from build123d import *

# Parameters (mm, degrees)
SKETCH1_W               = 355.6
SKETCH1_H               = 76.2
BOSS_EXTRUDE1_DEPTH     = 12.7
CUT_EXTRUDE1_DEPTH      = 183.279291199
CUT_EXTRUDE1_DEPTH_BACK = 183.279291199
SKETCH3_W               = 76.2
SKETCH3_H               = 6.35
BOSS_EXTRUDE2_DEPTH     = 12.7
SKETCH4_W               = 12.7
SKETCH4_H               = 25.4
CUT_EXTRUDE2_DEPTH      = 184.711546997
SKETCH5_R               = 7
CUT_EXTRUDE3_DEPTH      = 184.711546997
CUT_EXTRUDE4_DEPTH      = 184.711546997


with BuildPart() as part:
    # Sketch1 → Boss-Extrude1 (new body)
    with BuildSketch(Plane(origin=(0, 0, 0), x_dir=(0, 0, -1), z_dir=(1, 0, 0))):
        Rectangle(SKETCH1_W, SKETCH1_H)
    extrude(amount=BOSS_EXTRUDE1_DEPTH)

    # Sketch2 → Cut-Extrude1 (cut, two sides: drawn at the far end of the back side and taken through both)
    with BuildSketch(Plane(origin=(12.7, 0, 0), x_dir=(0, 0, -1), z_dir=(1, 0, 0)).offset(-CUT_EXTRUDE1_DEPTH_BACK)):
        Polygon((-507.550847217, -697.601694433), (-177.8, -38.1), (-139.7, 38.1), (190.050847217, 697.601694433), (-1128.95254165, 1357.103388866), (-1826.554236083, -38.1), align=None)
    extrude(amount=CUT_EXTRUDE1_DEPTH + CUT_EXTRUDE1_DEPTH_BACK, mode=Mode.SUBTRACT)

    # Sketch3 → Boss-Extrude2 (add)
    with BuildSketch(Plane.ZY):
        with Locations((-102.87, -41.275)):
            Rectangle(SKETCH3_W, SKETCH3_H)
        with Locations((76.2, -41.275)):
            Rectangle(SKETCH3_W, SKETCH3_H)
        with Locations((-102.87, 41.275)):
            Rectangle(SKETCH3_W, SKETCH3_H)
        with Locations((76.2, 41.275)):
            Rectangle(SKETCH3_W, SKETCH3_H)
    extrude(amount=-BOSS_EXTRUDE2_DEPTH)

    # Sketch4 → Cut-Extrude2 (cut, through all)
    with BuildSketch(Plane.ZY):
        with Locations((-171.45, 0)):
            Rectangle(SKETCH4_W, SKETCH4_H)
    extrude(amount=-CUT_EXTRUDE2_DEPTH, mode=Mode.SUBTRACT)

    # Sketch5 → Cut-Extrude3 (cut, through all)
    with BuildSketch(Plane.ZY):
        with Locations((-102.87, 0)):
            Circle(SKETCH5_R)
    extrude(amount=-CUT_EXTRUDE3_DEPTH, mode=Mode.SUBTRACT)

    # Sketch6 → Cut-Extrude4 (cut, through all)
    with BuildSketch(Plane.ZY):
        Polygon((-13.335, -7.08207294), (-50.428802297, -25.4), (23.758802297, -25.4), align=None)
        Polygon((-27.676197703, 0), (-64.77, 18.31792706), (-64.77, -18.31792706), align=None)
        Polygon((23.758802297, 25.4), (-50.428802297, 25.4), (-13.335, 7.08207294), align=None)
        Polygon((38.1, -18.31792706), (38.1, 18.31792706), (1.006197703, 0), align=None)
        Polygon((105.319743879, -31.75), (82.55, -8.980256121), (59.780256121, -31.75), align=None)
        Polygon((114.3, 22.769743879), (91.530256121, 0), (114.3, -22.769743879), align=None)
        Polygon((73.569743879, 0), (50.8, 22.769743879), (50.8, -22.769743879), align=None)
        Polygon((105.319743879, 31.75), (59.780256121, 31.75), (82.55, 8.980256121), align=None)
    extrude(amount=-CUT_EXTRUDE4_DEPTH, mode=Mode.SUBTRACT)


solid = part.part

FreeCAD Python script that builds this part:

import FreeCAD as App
import Part
import Sketcher

V = App.Vector
Q = App.Units.Quantity

doc = App.newDocument("Part")
body = doc.addObject("PartDesign::Body", "Body")

# Sketch on YZ plane
sketch1 = body.newObject("Sketcher::SketchObject", "Sketch")
sketch1.AttachmentSupport = (doc.getObject("YZ_Plane"), [""])
sketch1.MapMode = "FlatFace"
sketch1.addGeometry(Part.LineSegment(V(38, 178, 0), V(-38, 178, 0)), False)
sketch1.addGeometry(Part.LineSegment(V(-38, 178, 0), V(-38, -178, 0)), False)
sketch1.addGeometry(Part.LineSegment(V(-38, -178, 0), V(38, -178, 0)), False)
sketch1.addGeometry(Part.LineSegment(V(38, -178, 0), V(38, 178, 0)), False)
sketch1.addConstraint(Sketcher.Constraint("Coincident", 0, 2, 1, 1))
sketch1.addConstraint(Sketcher.Constraint("Coincident", 1, 2, 2, 1))
sketch1.addConstraint(Sketcher.Constraint("Coincident", 2, 2, 3, 1))
sketch1.addConstraint(Sketcher.Constraint("Coincident", 3, 2, 0, 1))
sketch1.addConstraint(Sketcher.Constraint("Horizontal", 0))
sketch1.addConstraint(Sketcher.Constraint("Vertical", 1))
sketch1.addConstraint(Sketcher.Constraint("Horizontal", 2))
sketch1.addConstraint(Sketcher.Constraint("Vertical", 3))
sketch1.addConstraint(Sketcher.Constraint("Symmetric", 0, 2, 2, 2, -1, 1))
sketch1.addConstraint(Sketcher.Constraint("DistanceX", 0, 2, 0, 1, Q("3 in")))
sketch1.addConstraint(Sketcher.Constraint("DistanceY", 1, 2, 1, 1, Q("14 in")))
pad1 = body.newObject("PartDesign::Pad", "Pad")
pad1.Profile = sketch1
pad1.Length = Q("0.5 in")

# Sketch on YZ plane
sketch2 = body.newObject("Sketcher::SketchObject", "Sketch001")
sketch2.AttachmentSupport = (doc.getObject("YZ_Plane"), [""])
sketch2.MapMode = "FlatFace"
sketch2.AttachmentOffset = App.Placement(V(0, 0, 0.5 * 25.4), App.Rotation())
sketch2.addGeometry(Part.LineSegment(V(-698, 508, 0), V(698, -190, 0)), False)
sketch2.addGeometry(Part.LineSegment(V(698, -190, 0), V(1357, 1129, 0)), False)
sketch2.addGeometry(Part.LineSegment(V(1357, 1129, 0), V(-38, 1827, 0)), False)
sketch2.addGeometry(Part.LineSegment(V(-38, 1827, 0), V(-698, 508, 0)), False)
sketch2.addConstraint(Sketcher.Constraint("Coincident", 0, 2, 1, 1))
sketch2.addConstraint(Sketcher.Constraint("Coincident", 1, 2, 2, 1))
sketch2.addConstraint(Sketcher.Constraint("Coincident", 2, 2, 3, 1))
sketch2.addConstraint(Sketcher.Constraint("Coincident", 3, 2, 0, 1))
sketch2.addConstraint(Sketcher.Constraint("Perpendicular", 0, 1))
sketch2.addConstraint(Sketcher.Constraint("Perpendicular", 1, 2))
sketch2.addConstraint(Sketcher.Constraint("Perpendicular", 2, 3))
sketch2.addConstraint(Sketcher.Constraint("DistanceX", 2, 2, -1, 1, Q("1.5 in")))
sketch2.addConstraint(Sketcher.Constraint("Distance", 0, Q("1559.88481 mm")))
sketch2.addConstraint(Sketcher.Constraint("Distance", 1, Q("1474.69062 mm")))
sketch2.addConstraint(Sketcher.Constraint("DistanceX", -1, 1, 1, 2, Q("1357.103389 mm")))
sketch2.addConstraint(Sketcher.Constraint("DistanceY", -1, 1, 1, 2, Q("1128.952542 mm")))
pocket1 = body.newObject("PartDesign::Pocket", "Pocket")
pocket1.Profile = sketch2
pocket1.Type = "ThroughAll"
pocket1.Midplane = True

# Sketch on YZ plane
sketch3 = body.newObject("Sketcher::SketchObject", "Sketch002")
sketch3.AttachmentSupport = (doc.getObject("YZ_Plane"), [""])
sketch3.MapMode = "FlatFace"
sketch3.addGeometry(Part.LineSegment(V(-38, -141, 0), V(-44, -141, 0)), False)
sketch3.addGeometry(Part.LineSegment(V(-44, -141, 0), V(-44, -65, 0)), False)
sketch3.addGeometry(Part.LineSegment(V(-44, -65, 0), V(-38, -65, 0)), False)
sketch3.addGeometry(Part.LineSegment(V(-38, -65, 0), V(-38, -141, 0)), False)
sketch3.addGeometry(Part.LineSegment(V(-38, 38, 0), V(-44, 38, 0)), False)
sketch3.addGeometry(Part.LineSegment(V(-44, 38, 0), V(-44, 114, 0)), False)
sketch3.addGeometry(Part.LineSegment(V(-44, 114, 0), V(-38, 114, 0)), False)
sketch3.addGeometry(Part.LineSegment(V(-38, 114, 0), V(-38, 38, 0)), False)
sketch3.addGeometry(Part.LineSegment(V(44, -141, 0), V(38, -141, 0)), False)
sketch3.addGeometry(Part.LineSegment(V(38, -141, 0), V(38, -65, 0)), False)
sketch3.addGeometry(Part.LineSegment(V(38, -65, 0), V(44, -65, 0)), False)
sketch3.addGeometry(Part.LineSegment(V(44, -65, 0), V(44, -141, 0)), False)
sketch3.addGeometry(Part.LineSegment(V(44, 38, 0), V(38, 38, 0)), False)
sketch3.addGeometry(Part.LineSegment(V(38, 38, 0), V(38, 114, 0)), False)
sketch3.addGeometry(Part.LineSegment(V(38, 114, 0), V(44, 114, 0)), False)
sketch3.addGeometry(Part.LineSegment(V(44, 114, 0), V(44, 38, 0)), False)
sketch3.addConstraint(Sketcher.Constraint("Coincident", 0, 2, 1, 1))
sketch3.addConstraint(Sketcher.Constraint("Coincident", 1, 2, 2, 1))
sketch3.addConstraint(Sketcher.Constraint("Coincident", 2, 2, 3, 1))
sketch3.addConstraint(Sketcher.Constraint("Coincident", 3, 2, 0, 1))
sketch3.addConstraint(Sketcher.Constraint("Coincident", 4, 2, 5, 1))
sketch3.addConstraint(Sketcher.Constraint("Coincident", 5, 2, 6, 1))
sketch3.addConstraint(Sketcher.Constraint("Coincident", 6, 2, 7, 1))
sketch3.addConstraint(Sketcher.Constraint("Coincident", 7, 2, 4, 1))
sketch3.addConstraint(Sketcher.Constraint("Coincident", 8, 2, 9, 1))
sketch3.addConstraint(Sketcher.Constraint("Coincident", 9, 2, 10, 1))
sketch3.addConstraint(Sketcher.Constraint("Coincident", 10, 2, 11, 1))
sketch3.addConstraint(Sketcher.Constraint("Coincident", 11, 2, 8, 1))
sketch3.addConstraint(Sketcher.Constraint("Coincident", 12, 2, 13, 1))
sketch3.addConstraint(Sketcher.Constraint("Coincident", 13, 2, 14, 1))
sketch3.addConstraint(Sketcher.Constraint("Coincident", 14, 2, 15, 1))
sketch3.addConstraint(Sketcher.Constraint("Coincident", 15, 2, 12, 1))
sketch3.addConstraint(Sketcher.Constraint("Horizontal", 0))
sketch3.addConstraint(Sketcher.Constraint("Vertical", 1))
sketch3.addConstraint(Sketcher.Constraint("Horizontal", 2))
sketch3.addConstraint(Sketcher.Constraint("Vertical", 3))
sketch3.addConstraint(Sketcher.Constraint("Horizontal", 4))
sketch3.addConstraint(Sketcher.Constraint("Vertical", 5))
sketch3.addConstraint(Sketcher.Constraint("Horizontal", 6))
sketch3.addConstraint(Sketcher.Constraint("Vertical", 7))
sketch3.addConstraint(Sketcher.Constraint("Horizontal", 8))
sketch3.addConstraint(Sketcher.Constraint("Vertical", 9))
sketch3.addConstraint(Sketcher.Constraint("Horizontal", 10))
sketch3.addConstraint(Sketcher.Constraint("Vertical", 11))
sketch3.addConstraint(Sketcher.Constraint("Horizontal", 12))
sketch3.addConstraint(Sketcher.Constraint("Vertical", 13))
sketch3.addConstraint(Sketcher.Constraint("Horizontal", 14))
sketch3.addConstraint(Sketcher.Constraint("Vertical", 15))
sketch3.addConstraint(Sketcher.Constraint("Symmetric", 3, 2, 8, 2, -2))
sketch3.addConstraint(Sketcher.Constraint("Symmetric", 1, 2, 10, 2, -2))
sketch3.addConstraint(Sketcher.Constraint("Symmetric", 7, 2, 12, 2, -2))
sketch3.addConstraint(Sketcher.Constraint("Symmetric", 5, 2, 14, 2, -2))
sketch3.addConstraint(Sketcher.Constraint("Vertical", 1, 2, 4, 2))
sketch3.addConstraint(Sketcher.Constraint("Vertical", 3, 2, 6, 2))
sketch3.addConstraint(Sketcher.Constraint("Equal", 3, 5))
sketch3.addConstraint(Sketcher.Constraint("DistanceY", 1, 1, 1, 2, Q("3 in")))
sketch3.addConstraint(Sketcher.Constraint("DistanceX", 3, 2, 8, 2, Q("3 in")))
sketch3.addConstraint(Sketcher.Constraint("DistanceX", 0, 2, 0, 1, Q("0.25 in")))
sketch3.addConstraint(Sketcher.Constraint("DistanceY", -1, 1, 4, 2, Q("1.5 in")))
sketch3.addConstraint(Sketcher.Constraint("DistanceY", 0, 2, -1, 1, Q("5.55 in")))
pad2 = body.newObject("PartDesign::Pad", "Pad001")
pad2.Profile = sketch3
pad2.Length = Q("0.5 in")

# Sketch on YZ plane
sketch4 = body.newObject("Sketcher::SketchObject", "Sketch003")
sketch4.AttachmentSupport = (doc.getObject("YZ_Plane"), [""])
sketch4.MapMode = "FlatFace"
sketch4.addGeometry(Part.LineSegment(V(13, -178, 0), V(-13, -178, 0)), False)
sketch4.addGeometry(Part.LineSegment(V(-13, -178, 0), V(-13, -165, 0)), False)
sketch4.addGeometry(Part.LineSegment(V(-13, -165, 0), V(13, -165, 0)), False)
sketch4.addGeometry(Part.LineSegment(V(13, -165, 0), V(13, -178, 0)), False)
sketch4.addConstraint(Sketcher.Constraint("Coincident", 0, 2, 1, 1))
sketch4.addConstraint(Sketcher.Constraint("Coincident", 1, 2, 2, 1))
sketch4.addConstraint(Sketcher.Constraint("Coincident", 2, 2, 3, 1))
sketch4.addConstraint(Sketcher.Constraint("Coincident", 3, 2, 0, 1))
sketch4.addConstraint(Sketcher.Constraint("Horizontal", 0))
sketch4.addConstraint(Sketcher.Constraint("Vertical", 1))
sketch4.addConstraint(Sketcher.Constraint("Horizontal", 2))
sketch4.addConstraint(Sketcher.Constraint("Vertical", 3))
sketch4.addConstraint(Sketcher.Constraint("DistanceX", 0, 2, 0, 1, Q("1 in")))
sketch4.addConstraint(Sketcher.Constraint("DistanceY", 1, 1, 1, 2, Q("0.5 in")))
sketch4.addConstraint(Sketcher.Constraint("DistanceY", 0, 2, -1, 1, Q("7 in")))
sketch4.addConstraint(Sketcher.Constraint("DistanceX", 0, 2, -1, 1, Q("0.5 in")))
pocket2 = body.newObject("PartDesign::Pocket", "Pocket001")
pocket2.Profile = sketch4
pocket2.Type = "ThroughAll"
pocket2.Reversed = True

# Sketch on YZ plane
sketch5 = body.newObject("Sketcher::SketchObject", "Sketch004")
sketch5.AttachmentSupport = (doc.getObject("YZ_Plane"), [""])
sketch5.MapMode = "FlatFace"
sketch5.addGeometry(Part.Circle(V(0, -103, 0), V(0, 0, 1), 7), False)
sketch5.addConstraint(Sketcher.Constraint("PointOnObject", 0, 3, -2))
sketch5.addConstraint(Sketcher.Constraint("Diameter", 0, Q("14 mm")))
sketch5.addConstraint(Sketcher.Constraint("DistanceY", 0, 3, -1, 1, Q("4.05 in")))
pocket3 = body.newObject("PartDesign::Pocket", "Pocket002")
pocket3.Profile = sketch5
pocket3.Type = "ThroughAll"
pocket3.Reversed = True

# Sketch on YZ plane
sketch6 = body.newObject("Sketcher::SketchObject", "Sketch005")
sketch6.AttachmentSupport = (doc.getObject("YZ_Plane"), [""])
sketch6.MapMode = "FlatFace"
sketch6.addGeometry(Part.LineSegment(V(-7, -13, 0), V(-25, -50, 0)), False)
sketch6.addGeometry(Part.LineSegment(V(-25, -50, 0), V(-25, 24, 0)), False)
sketch6.addGeometry(Part.LineSegment(V(-25, 24, 0), V(-7, -13, 0)), False)
sketch6.addGeometry(Part.LineSegment(V(0, -28, 0), V(18, -65, 0)), False)
sketch6.addGeometry(Part.LineSegment(V(18, -65, 0), V(-18, -65, 0)), False)
sketch6.addGeometry(Part.LineSegment(V(-18, -65, 0), V(0, -28, 0)), False)
sketch6.addGeometry(Part.LineSegment(V(25, 24, 0), V(25, -50, 0)), False)
sketch6.addGeometry(Part.LineSegment(V(25, -50, 0), V(7, -13, 0)), False)
sketch6.addGeometry(Part.LineSegment(V(7, -13, 0), V(25, 24, 0)), False)
sketch6.addGeometry(Part.LineSegment(V(-18, 38, 0), V(18, 38, 0)), False)
sketch6.addGeometry(Part.LineSegment(V(18, 38, 0), V(0, 1, 0)), False)
sketch6.addGeometry(Part.LineSegment(V(0, 1, 0), V(-18, 38, 0)), False)
sketch6.addGeometry(Part.LineSegment(V(-32, 105, 0), V(-9, 83, 0)), False)
sketch6.addGeometry(Part.LineSegment(V(-9, 83, 0), V(-32, 60, 0)), False)
sketch6.addGeometry(Part.LineSegment(V(-32, 60, 0), V(-32, 105, 0)), False)
sketch6.addGeometry(Part.LineSegment(V(23, 114, 0), V(0, 92, 0)), False)
sketch6.addGeometry(Part.LineSegment(V(0, 92, 0), V(-23, 114, 0)), False)
sketch6.addGeometry(Part.LineSegment(V(-23, 114, 0), V(23, 114, 0)), False)
sketch6.addGeometry(Part.LineSegment(V(0, 74, 0), V(23, 51, 0)), False)
sketch6.addGeometry(Part.LineSegment(V(23, 51, 0), V(-23, 51, 0)), False)
sketch6.addGeometry(Part.LineSegment(V(-23, 51, 0), V(0, 74, 0)), False)
sketch6.addGeometry(Part.LineSegment(V(32, 105, 0), V(32, 60, 0)), False)
sketch6.addGeometry(Part.LineSegment(V(32, 60, 0), V(9, 83, 0)), False)
sketch6.addGeometry(Part.LineSegment(V(9, 83, 0), V(32, 105, 0)), False)
sketch6.addConstraint(Sketcher.Constraint("Coincident", 0, 2, 1, 1))
sketch6.addConstraint(Sketcher.Constraint("Coincident", 1, 2, 2, 1))
sketch6.addConstraint(Sketcher.Constraint("Coincident", 2, 2, 0, 1))
sketch6.addConstraint(Sketcher.Constraint("Coincident", 3, 2, 4, 1))
sketch6.addConstraint(Sketcher.Constraint("Coincident", 4, 2, 5, 1))
sketch6.addConstraint(Sketcher.Constraint("Coincident", 5, 2, 3, 1))
sketch6.addConstraint(Sketcher.Constraint("Coincident", 6, 2, 7, 1))
sketch6.addConstraint(Sketcher.Constraint("Coincident", 7, 2, 8, 1))
sketch6.addConstraint(Sketcher.Constraint("Coincident", 8, 2, 6, 1))
sketch6.addConstraint(Sketcher.Constraint("Coincident", 9, 2, 10, 1))
sketch6.addConstraint(Sketcher.Constraint("Coincident", 10, 2, 11, 1))
sketch6.addConstraint(Sketcher.Constraint("Coincident", 11, 2, 9, 1))
sketch6.addConstraint(Sketcher.Constraint("Coincident", 12, 2, 13, 1))
sketch6.addConstraint(Sketcher.Constraint("Coincident", 13, 2, 14, 1))
sketch6.addConstraint(Sketcher.Constraint("Coincident", 14, 2, 12, 1))
sketch6.addConstraint(Sketcher.Constraint("Coincident", 15, 2, 16, 1))
sketch6.addConstraint(Sketcher.Constraint("Coincident", 16, 2, 17, 1))
sketch6.addConstraint(Sketcher.Constraint("Coincident", 17, 2, 15, 1))
sketch6.addConstraint(Sketcher.Constraint("Coincident", 18, 2, 19, 1))
sketch6.addConstraint(Sketcher.Constraint("Coincident", 19, 2, 20, 1))
sketch6.addConstraint(Sketcher.Constraint("Coincident", 20, 2, 18, 1))
sketch6.addConstraint(Sketcher.Constraint("Coincident", 21, 2, 22, 1))
sketch6.addConstraint(Sketcher.Constraint("Coincident", 22, 2, 23, 1))
sketch6.addConstraint(Sketcher.Constraint("Coincident", 23, 2, 21, 1))
sketch6.addConstraint(Sketcher.Constraint("Vertical", 1))
sketch6.addConstraint(Sketcher.Constraint("Horizontal", 4))
sketch6.addConstraint(Sketcher.Constraint("Vertical", 6))
sketch6.addConstraint(Sketcher.Constraint("Horizontal", 9))
sketch6.addConstraint(Sketcher.Constraint("Vertical", 14))
sketch6.addConstraint(Sketcher.Constraint("Horizontal", 17))
sketch6.addConstraint(Sketcher.Constraint("Horizontal", 19))
sketch6.addConstraint(Sketcher.Constraint("Vertical", 21))
sketch6.addConstraint(Sketcher.Constraint("Symmetric", 0, 2, 6, 2, -2))
sketch6.addConstraint(Sketcher.Constraint("Symmetric", 2, 2, 7, 2, -2))
sketch6.addConstraint(Sketcher.Constraint("Symmetric", 13, 2, 21, 2, -2))
sketch6.addConstraint(Sketcher.Constraint("Symmetric", 12, 2, 22, 2, -2))
sketch6.addConstraint(Sketcher.Constraint("PointOnObject", 5, 2, -2))
sketch6.addConstraint(Sketcher.Constraint("PointOnObject", 10, 2, -2))
sketch6.addConstraint(Sketcher.Constraint("PointOnObject", 15, 2, -2))
sketch6.addConstraint(Sketcher.Constraint("PointOnObject", 20, 2, -2))
sketch6.addConstraint(Sketcher.Constraint("Parallel", 2, 3))
sketch6.addConstraint(Sketcher.Constraint("Parallel", 0, 5))
sketch6.addConstraint(Sketcher.Constraint("Parallel", 3, 7))
sketch6.addConstraint(Sketcher.Constraint("Parallel", 5, 8))
sketch6.addConstraint(Sketcher.Constraint("Parallel", 8, 10))
sketch6.addConstraint(Sketcher.Constraint("Parallel", 7, 11))
sketch6.addConstraint(Sketcher.Constraint("Perpendicular", 12, 13))
sketch6.addConstraint(Sketcher.Constraint("Parallel", 13, 15))
sketch6.addConstraint(Sketcher.Constraint("Perpendicular", 15, 16))
sketch6.addConstraint(Sketcher.Constraint("Parallel", 16, 18))
sketch6.addConstraint(Sketcher.Constraint("Perpendicular", 18, 20))
sketch6.addConstraint(Sketcher.Constraint("Perpendicular", 20, 22))
sketch6.addConstraint(Sketcher.Constraint("Perpendicular", 22, 23))
sketch6.addConstraint(Sketcher.Constraint("Vertical", 3, 2, 9, 2))
sketch6.addConstraint(Sketcher.Constraint("Vertical", 17, 2, 18, 2))
sketch6.addConstraint(Sketcher.Constraint("Equal", 19, 14))
sketch6.addConstraint(Sketcher.Constraint("Equal", 2, 3))
sketch6.addConstraint(Sketcher.Constraint("DistanceX", 0, 2, -1, 1, Q("1 in")))
sketch6.addConstraint(Sketcher.Constraint("DistanceY", -1, 1, 18, 2, Q("2 in")))
sketch6.addConstraint(Sketcher.Constraint("DistanceY", 11, 2, 16, 2, Q("3 in")))
sketch6.addConstraint(Sketcher.Constraint("DistanceY", -1, 1, 9, 2, Q("1.5 in")))
sketch6.addConstraint(Sketcher.Constraint("DistanceY", 3, 2, -1, 1, Q("2.55 in")))
sketch6.addConstraint(Sketcher.Constraint("DistanceY", -1, 1, 12, 2, Q("3.25 in")))
sketch6.addConstraint(Sketcher.Constraint("DistanceX", 13, 2, -1, 1, Q("1.25 in")))
sketch6.addConstraint(Sketcher.Constraint("DistanceY", 2, 2, -1, 1, Q("0.525 in")))
sketch6.addConstraint(Sketcher.Constraint("Distance", 0, Q("41.370238 mm")))
sketch6.addConstraint(Sketcher.Constraint("Distance", 12, Q("32.201281 mm")))
sketch6.addConstraint(Sketcher.Constraint("DistanceX", 4, 2, 4, 1, Q("36.635854 mm")))
pocket4 = body.newObject("PartDesign::Pocket", "Pocket003")
pocket4.Profile = sketch6
pocket4.Type = "ThroughAll"
pocket4.Reversed = True

doc.recompute()
